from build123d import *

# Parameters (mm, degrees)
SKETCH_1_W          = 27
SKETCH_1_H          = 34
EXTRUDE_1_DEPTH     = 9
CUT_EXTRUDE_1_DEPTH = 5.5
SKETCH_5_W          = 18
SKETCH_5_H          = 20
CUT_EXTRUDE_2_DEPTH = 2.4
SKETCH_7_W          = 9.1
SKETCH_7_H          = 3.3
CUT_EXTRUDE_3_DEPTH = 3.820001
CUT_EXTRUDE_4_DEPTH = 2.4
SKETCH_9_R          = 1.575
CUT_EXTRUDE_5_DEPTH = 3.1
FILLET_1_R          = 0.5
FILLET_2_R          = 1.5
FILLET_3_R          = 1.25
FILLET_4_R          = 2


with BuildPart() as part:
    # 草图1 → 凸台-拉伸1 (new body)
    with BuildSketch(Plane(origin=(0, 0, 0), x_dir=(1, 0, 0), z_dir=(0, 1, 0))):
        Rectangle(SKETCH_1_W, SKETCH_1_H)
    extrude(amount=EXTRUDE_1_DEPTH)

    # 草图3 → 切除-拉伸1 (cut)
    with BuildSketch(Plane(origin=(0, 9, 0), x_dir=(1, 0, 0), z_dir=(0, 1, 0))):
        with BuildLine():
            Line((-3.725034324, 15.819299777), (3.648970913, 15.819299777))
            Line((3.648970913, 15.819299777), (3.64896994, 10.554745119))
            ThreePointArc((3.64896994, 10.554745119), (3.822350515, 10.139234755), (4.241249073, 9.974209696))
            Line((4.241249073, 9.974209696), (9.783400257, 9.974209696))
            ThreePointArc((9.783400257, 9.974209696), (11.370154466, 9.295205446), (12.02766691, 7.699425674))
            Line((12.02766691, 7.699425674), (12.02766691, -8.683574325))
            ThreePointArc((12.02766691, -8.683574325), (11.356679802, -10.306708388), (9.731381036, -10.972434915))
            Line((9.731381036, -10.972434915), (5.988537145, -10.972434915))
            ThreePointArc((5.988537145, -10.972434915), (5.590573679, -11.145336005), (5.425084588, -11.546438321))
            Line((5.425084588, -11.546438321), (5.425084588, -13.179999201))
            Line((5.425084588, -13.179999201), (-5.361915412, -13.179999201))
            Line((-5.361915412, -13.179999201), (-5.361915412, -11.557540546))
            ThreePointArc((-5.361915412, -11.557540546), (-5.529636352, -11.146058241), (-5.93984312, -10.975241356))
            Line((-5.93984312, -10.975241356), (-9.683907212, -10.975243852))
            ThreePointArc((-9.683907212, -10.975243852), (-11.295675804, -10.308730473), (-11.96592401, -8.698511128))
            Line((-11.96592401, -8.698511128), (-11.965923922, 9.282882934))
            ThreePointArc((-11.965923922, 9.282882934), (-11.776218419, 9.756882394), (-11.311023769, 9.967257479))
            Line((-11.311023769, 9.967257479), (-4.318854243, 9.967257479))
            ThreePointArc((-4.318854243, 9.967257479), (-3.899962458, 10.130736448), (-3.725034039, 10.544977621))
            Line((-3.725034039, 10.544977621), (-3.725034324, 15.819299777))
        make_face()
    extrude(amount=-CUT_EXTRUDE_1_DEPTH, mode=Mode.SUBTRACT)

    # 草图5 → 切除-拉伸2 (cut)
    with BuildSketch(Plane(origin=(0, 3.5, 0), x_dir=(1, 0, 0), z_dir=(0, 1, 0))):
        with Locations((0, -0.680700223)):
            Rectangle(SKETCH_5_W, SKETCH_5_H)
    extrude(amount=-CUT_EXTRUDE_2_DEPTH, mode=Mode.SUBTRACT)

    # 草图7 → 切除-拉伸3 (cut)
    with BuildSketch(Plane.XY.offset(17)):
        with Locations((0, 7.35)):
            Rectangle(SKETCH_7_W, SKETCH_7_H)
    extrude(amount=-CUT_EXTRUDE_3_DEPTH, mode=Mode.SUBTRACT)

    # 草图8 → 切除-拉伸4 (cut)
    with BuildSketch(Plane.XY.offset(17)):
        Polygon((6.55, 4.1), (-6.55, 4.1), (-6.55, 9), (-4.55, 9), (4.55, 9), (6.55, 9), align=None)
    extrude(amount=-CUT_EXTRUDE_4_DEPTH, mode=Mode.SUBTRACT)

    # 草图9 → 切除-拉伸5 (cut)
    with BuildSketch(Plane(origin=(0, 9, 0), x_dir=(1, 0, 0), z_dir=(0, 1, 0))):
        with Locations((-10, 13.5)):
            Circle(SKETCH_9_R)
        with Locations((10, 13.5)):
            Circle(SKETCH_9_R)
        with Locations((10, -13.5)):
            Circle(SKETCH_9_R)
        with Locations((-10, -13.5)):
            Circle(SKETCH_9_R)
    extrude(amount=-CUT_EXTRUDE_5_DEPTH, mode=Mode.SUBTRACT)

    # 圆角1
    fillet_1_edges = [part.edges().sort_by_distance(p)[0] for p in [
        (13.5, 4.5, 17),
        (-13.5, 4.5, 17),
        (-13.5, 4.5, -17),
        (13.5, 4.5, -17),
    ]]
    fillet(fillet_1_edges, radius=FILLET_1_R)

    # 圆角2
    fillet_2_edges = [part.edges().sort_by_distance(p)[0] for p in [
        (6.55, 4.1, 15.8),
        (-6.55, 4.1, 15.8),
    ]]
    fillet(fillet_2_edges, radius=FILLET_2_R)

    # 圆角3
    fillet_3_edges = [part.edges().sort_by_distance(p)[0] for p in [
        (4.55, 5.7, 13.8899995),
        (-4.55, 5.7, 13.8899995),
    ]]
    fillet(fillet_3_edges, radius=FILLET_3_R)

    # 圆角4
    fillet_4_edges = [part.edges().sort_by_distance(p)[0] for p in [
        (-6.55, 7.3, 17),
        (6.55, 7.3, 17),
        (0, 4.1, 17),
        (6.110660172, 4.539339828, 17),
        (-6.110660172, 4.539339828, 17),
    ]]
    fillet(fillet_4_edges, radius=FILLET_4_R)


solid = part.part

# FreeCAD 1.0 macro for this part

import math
import FreeCAD as App
import Part
import Sketcher
Q = App.Units.Quantity


def edges_at(feature, points):
    """Names of the edges that pass closest to the given points."""
    edges = feature.Shape.Edges
    near = lambda p: min(range(len(edges)), key=lambda i: edges[i].distToShape(Part.Vertex(*p))[0])
    return sorted({f"Edge{near(p) + 1}" for p in points})


def add_polygon(sketch, points):
    """Adds a closed chain of lines whose ends are joined by coincident constraints."""
    first, n = sketch.GeometryCount, len(points)
    for a, b in zip(points, points[1:] + points[:1]):
        sketch.addGeometry(Part.LineSegment(App.Vector(*a, 0), App.Vector(*b, 0)), False)
    for i in range(n):
        sketch.addConstraint(Sketcher.Constraint("Coincident", first + i, 2, first + (i + 1) % n, 1))

doc = App.newDocument("Part")
body = doc.addObject("PartDesign::Body", "Body")

# Sketch on XZ plane
sketch1 = body.newObject("Sketcher::SketchObject", "Sketch")
sketch1.AttachmentSupport = (doc.getObject("XZ_Plane"), [""])
sketch1.MapMode = "FlatFace"
add_polygon(sketch1, [(-14, -17), (-14, 17), (14, 17), (14, -17)])  # lines 0-3
sketch1.addConstraint(Sketcher.Constraint("Vertical", 0))
sketch1.addConstraint(Sketcher.Constraint("Horizontal", 1))
sketch1.addConstraint(Sketcher.Constraint("Vertical", 2))
sketch1.addConstraint(Sketcher.Constraint("Horizontal", 3))
sketch1.addConstraint(Sketcher.Constraint("Symmetric", 0, 2, 2, 2, -1, 1))
sketch1.addConstraint(Sketcher.Constraint("DistanceX", 1, 1, 1, 2, Q("27 mm")))
sketch1.addConstraint(Sketcher.Constraint("DistanceY", 0, 1, 0, 2, Q("34 mm")))
pad1 = body.newObject("PartDesign::Pad", "Pad")
pad1.Profile = sketch1
pad1.Length = 9
pad1.Reversed = True

# Sketch on XZ plane
sketch2 = body.newObject("Sketcher::SketchObject", "Sketch001")
sketch2.AttachmentSupport = (doc.getObject("XZ_Plane"), [""])
sketch2.MapMode = "FlatFace"
sketch2.AttachmentOffset = App.Placement(App.Vector(0, 0, -9), App.Rotation())
sketch2.addGeometry(Part.LineSegment(App.Vector(3.648971, -15.8193, 0), App.Vector(-3.725034, -15.8193, 0)), False)
sketch2.addGeometry(Part.LineSegment(App.Vector(-3.725034, -15.8193, 0), App.Vector(-3.725034, -10.544978, 0)), False)
sketch2.addGeometry(Part.ArcOfCircle(Part.Circle(App.Vector(-4.302972, -10.544978, 0), App.Vector(0, 0, 1), 0.577938), math.radians(0), math.radians(91.574692)), False)
sketch2.addGeometry(Part.LineSegment(App.Vector(-4.318854, -9.967257, 0), App.Vector(-11.311024, -9.967257, 0)), False)
sketch2.addGeometry(Part.ArcOfCircle(Part.Circle(App.Vector(-11.282312, -9.284248, 0), App.Vector(0, 0, 1), 0.683613), math.radians(179.8856), math.radians(267.592908)), False)
sketch2.addGeometry(Part.LineSegment(App.Vector(-11.965924, -9.282883, 0), App.Vector(-11.965924, 8.698511, 0)), False)
sketch2.addGeometry(Part.ArcOfCircle(Part.Circle(App.Vector(-9.683929, 8.693242, 0), App.Vector(0, 0, 1), 2.282001), math.radians(89.999462), math.radians(179.867714)), False)
sketch2.addGeometry(Part.LineSegment(App.Vector(-9.683907, 10.975244, 0), App.Vector(-5.939843, 10.975241, 0)), False)
sketch2.addGeometry(Part.ArcOfCircle(Part.Circle(App.Vector(-5.939837, 11.55318, 0), App.Vector(0, 0, 1), 0.577938), math.radians(-90.000571), math.radians(0.432325)), False)
sketch2.addGeometry(Part.LineSegment(App.Vector(-5.361915, 11.557541, 0), App.Vector(-5.361915, 13.179999, 0)), False)
sketch2.addGeometry(Part.LineSegment(App.Vector(-5.361915, 13.179999, 0), App.Vector(5.425085, 13.179999, 0)), False)
sketch2.addGeometry(Part.LineSegment(App.Vector(5.425085, 13.179999, 0), App.Vector(5.425085, 11.546438, 0)), False)
sketch2.addGeometry(Part.ArcOfCircle(Part.Circle(App.Vector(6.003011, 11.550192, 0), App.Vector(0, 0, 1), 0.577938), math.radians(-179.627859), math.radians(-91.435042)), False)
sketch2.addGeometry(Part.LineSegment(App.Vector(5.988537, 10.972435, 0), App.Vector(9.731381, 10.972435, 0)), False)
sketch2.addGeometry(Part.ArcOfCircle(Part.Circle(App.Vector(9.745677, 8.69048, 0), App.Vector(0, 0, 1), 2.282), math.radians(-0.173379), math.radians(90.358951)), False)
sketch2.addGeometry(Part.LineSegment(App.Vector(12.027667, 8.683574, 0), App.Vector(12.027667, -7.699426, 0)), False)
sketch2.addGeometry(Part.ArcOfCircle(Part.Circle(App.Vector(9.745676, -7.69252, 0), App.Vector(0, 0, 1), 2.282001), math.radians(-89.05279), math.radians(-0.173379)), False)
sketch2.addGeometry(Part.LineSegment(App.Vector(9.7834, -9.97421, 0), App.Vector(4.241249, -9.97421, 0)), False)
sketch2.addGeometry(Part.ArcOfCircle(Part.Circle(App.Vector(4.226903, -10.551972, 0), App.Vector(0, 0, 1), 0.57794), math.radians(88.577638), math.radians(180.274964)), False)
sketch2.addGeometry(Part.LineSegment(App.Vector(3.64897, -10.554745, 0), App.Vector(3.648971, -15.8193, 0)), False)
sketch2.addConstraint(Sketcher.Constraint("Coincident", 0, 2, 1, 1))
sketch2.addConstraint(Sketcher.Constraint("Coincident", 1, 2, 2, 1))
sketch2.addConstraint(Sketcher.Constraint("Coincident", 2, 2, 3, 1))
sketch2.addConstraint(Sketcher.Constraint("Coincident", 3, 2, 4, 2))
sketch2.addConstraint(Sketcher.Constraint("Coincident", 4, 1, 5, 1))
sketch2.addConstraint(Sketcher.Constraint("Coincident", 5, 2, 6, 2))
sketch2.addConstraint(Sketcher.Constraint("Coincident", 6, 1, 7, 1))
sketch2.addConstraint(Sketcher.Constraint("Coincident", 7, 2, 8, 1))
sketch2.addConstraint(Sketcher.Constraint("Coincident", 8, 2, 9, 1))
sketch2.addConstraint(Sketcher.Constraint("Coincident", 9, 2, 10, 1))
sketch2.addConstraint(Sketcher.Constraint("Coincident", 10, 2, 11, 1))
sketch2.addConstraint(Sketcher.Constraint("Coincident", 11, 2, 12, 1))
sketch2.addConstraint(Sketcher.Constraint("Coincident", 12, 2, 13, 1))
sketch2.addConstraint(Sketcher.Constraint("Coincident", 13, 2, 14, 2))
sketch2.addConstraint(Sketcher.Constraint("Coincident", 14, 1, 15, 1))
sketch2.addConstraint(Sketcher.Constraint("Coincident", 15, 2, 16, 2))
sketch2.addConstraint(Sketcher.Constraint("Coincident", 16, 1, 17, 1))
sketch2.addConstraint(Sketcher.Constraint("Coincident", 17, 2, 18, 1))
sketch2.addConstraint(Sketcher.Constraint("Coincident", 18, 2, 19, 1))
sketch2.addConstraint(Sketcher.Constraint("Coincident", 19, 2, 0, 1))
sketch2.addConstraint(Sketcher.Constraint("Horizontal", 0))
sketch2.addConstraint(Sketcher.Constraint("Vertical", 1))
sketch2.addConstraint(Sketcher.Constraint("Horizontal", 3))
sketch2.addConstraint(Sketcher.Constraint("Vertical", 5))
sketch2.addConstraint(Sketcher.Constraint("Vertical", 9))
sketch2.addConstraint(Sketcher.Constraint("Horizontal", 10))
sketch2.addConstraint(Sketcher.Constraint("Vertical", 11))
sketch2.addConstraint(Sketcher.Constraint("Horizontal", 13))
sketch2.addConstraint(Sketcher.Constraint("Vertical", 15))
sketch2.addConstraint(Sketcher.Constraint("Horizontal", 17))
sketch2.addConstraint(Sketcher.Constraint("Vertical", 19))
sketch2.addConstraint(Sketcher.Constraint("Radius", 6, Q("2.282001 mm")))
sketch2.addConstraint(Sketcher.Constraint("Radius", 14, Q("2.282 mm")))
sketch2.addConstraint(Sketcher.Constraint("Radius", 16, Q("2.282001 mm")))
sketch2.addConstraint(Sketcher.Constraint("DistanceX", 10, 1, 10, 2, Q("10.787 mm")))
sketch2.addConstraint(Sketcher.Constraint("DistanceY", 15, 2, 15, 1, Q("16.383 mm")))
sketch2.addConstraint(Sketcher.Constraint("DistanceY", -1, 1, 9, 2, Q("13.179999 mm")))
sketch2.addConstraint(Sketcher.Constraint("Radius", 2, Q("0.577938 mm")))
sketch2.addConstraint(Sketcher.Constraint("Radius", 8, Q("0.577938 mm")))
sketch2.addConstraint(Sketcher.Constraint("Radius", 12, Q("0.577938 mm")))
sketch2.addConstraint(Sketcher.Constraint("Radius", 18, Q("0.57794 mm")))
sketch2.addConstraint(Sketcher.Constraint("Radius", 4, Q("0.683613 mm")))
sketch2.addConstraint(Sketcher.Constraint("DistanceY", 16, 3, 14, 3, Q("16.383 mm")))
sketch2.addConstraint(Sketcher.Constraint("DistanceY", 6, 3, 7, 2, Q("2.281999 mm")))
sketch2.addConstraint(Sketcher.Constraint("DistanceX", 3, 2, 3, 1, Q("6.99217 mm")))
sketch2.addConstraint(Sketcher.Constraint("DistanceX", 17, 2, 17, 1, Q("5.542151 mm")))
sketch2.addConstraint(Sketcher.Constraint("DistanceY", 9, 1, 9, 2, Q("1.622459 mm")))
sketch2.addConstraint(Sketcher.Constraint("DistanceY", 11, 2, 11, 1, Q("1.633561 mm")))
sketch2.addConstraint(Sketcher.Constraint("DistanceY", 0, 2, -1, 1, Q("15.8193 mm")))
sketch2.addConstraint(Sketcher.Constraint("DistanceX", -1, 1, 16, 1, Q("9.7834 mm")))
sketch2.addConstraint(Sketcher.Constraint("DistanceY", 14, 3, 8, 3, Q("2.8627 mm")))
sketch2.addConstraint(Sketcher.Constraint("DistanceX", 4, 1, 3, 2, Q("0.6549 mm")))
sketch2.addConstraint(Sketcher.Constraint("DistanceY", 7, 2, 8, 2, Q("0.582299 mm")))
sketch2.addConstraint(Sketcher.Constraint("DistanceX", 1, 2, 15, 2, Q("15.752701 mm")))
sketch2.addConstraint(Sketcher.Constraint("DistanceX", 0, 2, 0, 1, Q("7.374005 mm")))
sketch2.addConstraint(Sketcher.Constraint("DistanceX", 13, 1, 13, 2, Q("3.742844 mm")))
sketch2.addConstraint(Sketcher.Constraint("DistanceY", 1, 1, 1, 2, Q("5.274322 mm")))
sketch2.addConstraint(Sketcher.Constraint("DistanceY", 5, 1, 5, 2, Q("17.981394 mm")))
sketch2.addConstraint(Sketcher.Constraint("DistanceY", 19, 2, 19, 1, Q("5.264555 mm")))
sketch2.addConstraint(Sketcher.Constraint("DistanceX", 6, 3, -1, 1, Q("9.683929 mm")))
sketch2.addConstraint(Sketcher.Constraint("DistanceX", -1, 1, 12, 3, Q("6.003011 mm")))
sketch2.addConstraint(Sketcher.Constraint("DistanceY", 18, 3, -1, 1, Q("10.551972 mm")))
sketch2.addConstraint(Sketcher.Constraint("DistanceY", -1, 1, 5, 2, Q("8.698511 mm")))
sketch2.addConstraint(Sketcher.Constraint("DistanceX", -1, 1, 13, 2, Q("9.731381 mm")))
sketch2.addConstraint(Sketcher.Constraint("DistanceY", 4, 3, 6, 3, Q("17.97749 mm")))
sketch2.addConstraint(Sketcher.Constraint("DistanceX", 6, 1, 8, 3, Q("3.74407 mm")))
sketch2.addConstraint(Sketcher.Constraint("DistanceX", 5, 2, 7, 2, Q("6.026081 mm")))
sketch2.addConstraint(Sketcher.Constraint("DistanceY", 14, 1, 13, 2, Q("2.288861 mm")))
pocket1 = body.newObject("PartDesign::Pocket", "Pocket")
pocket1.Profile = sketch2
pocket1.Length = 5.5
pocket1.Reversed = True

# Sketch on XZ plane
sketch3 = body.newObject("Sketcher::SketchObject", "Sketch002")
sketch3.AttachmentSupport = (doc.getObject("XZ_Plane"), [""])
sketch3.MapMode = "FlatFace"
sketch3.AttachmentOffset = App.Placement(App.Vector(0, 0, -3.5), App.Rotation())
add_polygon(sketch3, [(-9, -9), (-9, 11), (9, 11), (9, -9)])  # lines 0-3
sketch3.addConstraint(Sketcher.Constraint("Vertical", 0))
sketch3.addConstraint(Sketcher.Constraint("Horizontal", 1))
sketch3.addConstraint(Sketcher.Constraint("Vertical", 2))
sketch3.addConstraint(Sketcher.Constraint("Horizontal", 3))
sketch3.addConstraint(Sketcher.Constraint("DistanceX", 1, 1, 1, 2, Q("18 mm")))
sketch3.addConstraint(Sketcher.Constraint("DistanceY", 0, 1, 0, 2, Q("20 mm")))
sketch3.addConstraint(Sketcher.Constraint("DistanceX", 0, 2, -1, 1, Q("9 mm")))
sketch3.addConstraint(Sketcher.Constraint("DistanceY", -1, 1, 0, 2, Q("10.6807 mm")))
pocket2 = body.newObject("PartDesign::Pocket", "Pocket001")
pocket2.Profile = sketch3
pocket2.Length = 2.4
pocket2.Reversed = True

# Sketch on XY plane
sketch4 = body.newObject("Sketcher::SketchObject", "Sketch003")
sketch4.AttachmentSupport = (doc.getObject("XY_Plane"), [""])
sketch4.MapMode = "FlatFace"
sketch4.AttachmentOffset = App.Placement(App.Vector(0, 0, 17), App.Rotation())
add_polygon(sketch4, [(-4.5, 9), (-4.5, 5.7), (4.5, 5.7), (4.5, 9)])  # lines 0-3
sketch4.addConstraint(Sketcher.Constraint("Vertical", 0))
sketch4.addConstraint(Sketcher.Constraint("Horizontal", 1))
sketch4.addConstraint(Sketcher.Constraint("Vertical", 2))
sketch4.addConstraint(Sketcher.Constraint("Horizontal", 3))
sketch4.addConstraint(Sketcher.Constraint("DistanceX", 1, 1, 1, 2, Q("9.1 mm")))
sketch4.addConstraint(Sketcher.Constraint("DistanceY", 0, 2, 0, 1, Q("3.3 mm")))
sketch4.addConstraint(Sketcher.Constraint("DistanceY", -1, 1, 2, 2, Q("9 mm")))
sketch4.addConstraint(Sketcher.Constraint("DistanceX", 0, 2, -1, 1, Q("4.55 mm")))
pocket3 = body.newObject("PartDesign::Pocket", "Pocket002")
pocket3.Profile = sketch4
pocket3.Length = 3.820001

# Sketch on XY plane
sketch5 = body.newObject("Sketcher::SketchObject", "Sketch004")
sketch5.AttachmentSupport = (doc.getObject("XY_Plane"), [""])
sketch5.MapMode = "FlatFace"
sketch5.AttachmentOffset = App.Placement(App.Vector(0, 0, 17), App.Rotation())
add_polygon(sketch5, [(-6.5, 4.1), (6.5, 4.1), (6.5, 9), (-6.5, 9)])  # lines 0-3
sketch5.addConstraint(Sketcher.Constraint("Horizontal", 0))
sketch5.addConstraint(Sketcher.Constraint("Vertical", 1))
sketch5.addConstraint(Sketcher.Constraint("Horizontal", 2))
sketch5.addConstraint(Sketcher.Constraint("Vertical", 3))
sketch5.addConstraint(Sketcher.Constraint("DistanceX", 0, 1, 0, 2, Q("13.1 mm")))
sketch5.addConstraint(Sketcher.Constraint("DistanceY", 1, 1, 1, 2, Q("4.9 mm")))
sketch5.addConstraint(Sketcher.Constraint("DistanceY", -1, 1, 1, 2, Q("9 mm")))
sketch5.addConstraint(Sketcher.Constraint("DistanceX", -1, 1, 0, 2, Q("6.55 mm")))
pocket4 = body.newObject("PartDesign::Pocket", "Pocket003")
pocket4.Profile = sketch5
pocket4.Length = 2.4

# Sketch on XZ plane
sketch6 = body.newObject("Sketcher::SketchObject", "Sketch005")
sketch6.AttachmentSupport = (doc.getObject("XZ_Plane"), [""])
sketch6.MapMode = "FlatFace"
sketch6.AttachmentOffset = App.Placement(App.Vector(0, 0, -9), App.Rotation())
sketch6.addGeometry(Part.Circle(App.Vector(-10, -13.5, 0), App.Vector(0, 0, 1), 1.6), False)
sketch6.addGeometry(Part.Circle(App.Vector(10, -13.5, 0), App.Vector(0, 0, 1), 1.6), False)
sketch6.addGeometry(Part.Circle(App.Vector(10, 13.5, 0), App.Vector(0, 0, 1), 1.6), False)
sketch6.addGeometry(Part.Circle(App.Vector(-10, 13.5, 0), App.Vector(0, 0, 1), 1.6), False)
sketch6.addConstraint(Sketcher.Constraint("Equal", 0, 1))
sketch6.addConstraint(Sketcher.Constraint("Equal", 1, 2))
sketch6.addConstraint(Sketcher.Constraint("Equal", 2, 3))
sketch6.addConstraint(Sketcher.Constraint("Symmetric", 0, 3, 2, 3, -1, 1))
sketch6.addConstraint(Sketcher.Constraint("Symmetric", 1, 3, 3, 3, -1, 1))
sketch6.addConstraint(Sketcher.Constraint("Symmetric", 0, 3, 1, 3, -2))
sketch6.addConstraint(Sketcher.Constraint("Diameter", 0, Q("3.15 mm")))
sketch6.addConstraint(Sketcher.Constraint("DistanceX", 0, 3, -1, 1, Q("10 mm")))
sketch6.addConstraint(Sketcher.Constraint("DistanceY", 1, 3, 2, 3, Q("27 mm")))
pocket5 = body.newObject("PartDesign::Pocket", "Pocket004")
pocket5.Profile = sketch6
pocket5.Length = 3.1
pocket5.Reversed = True
doc.recompute()

fillet = body.newObject("PartDesign::Fillet", "Fillet")
fillet.Base = (pocket5, edges_at(pocket5, [
    (13.5, 4.5, 17),
    (-13.5, 4.5, 17),
    (-13.5, 4.5, -17),
    (13.5, 4.5, -17),
]))
fillet.Radius = 0.5
doc.recompute()

fillet2 = body.newObject("PartDesign::Fillet", "Fillet001")
fillet2.Base = (fillet, edges_at(fillet, [(6.55, 4.1, 15.8), (-6.55, 4.1, 15.8)]))
fillet2.Radius = 1.5
doc.recompute()

fillet3 = body.newObject("PartDesign::Fillet", "Fillet002")
fillet3.Base = (fillet2, edges_at(fillet2, [(4.55, 5.7, 13.89), (-4.55, 5.7, 13.89)]))
fillet3.Radius = 1.25
doc.recompute()

fillet4 = body.newObject("PartDesign::Fillet", "Fillet003")
fillet4.Base = (fillet3, edges_at(fillet3, [
    (-6.55, 7.3, 17),
    (6.55, 7.3, 17),
    (0, 4.1, 17),
    (6.111, 4.539, 17),
    (-6.111, 4.539, 17),
]))
fillet4.Radius = 2

doc.recompute()
